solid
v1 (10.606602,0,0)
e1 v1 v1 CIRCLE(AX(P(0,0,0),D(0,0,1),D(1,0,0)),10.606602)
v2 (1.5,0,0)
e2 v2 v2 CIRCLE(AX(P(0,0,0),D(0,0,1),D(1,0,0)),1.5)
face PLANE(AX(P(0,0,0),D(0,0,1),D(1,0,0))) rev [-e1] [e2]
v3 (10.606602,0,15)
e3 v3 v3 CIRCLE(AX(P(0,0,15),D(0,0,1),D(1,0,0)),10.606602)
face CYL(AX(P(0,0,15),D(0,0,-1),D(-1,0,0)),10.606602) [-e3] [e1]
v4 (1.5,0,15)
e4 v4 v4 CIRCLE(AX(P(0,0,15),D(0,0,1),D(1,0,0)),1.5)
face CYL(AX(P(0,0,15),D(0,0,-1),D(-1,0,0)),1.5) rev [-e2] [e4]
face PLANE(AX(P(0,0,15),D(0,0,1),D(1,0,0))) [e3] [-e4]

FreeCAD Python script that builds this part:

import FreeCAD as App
import Part
import Sketcher

V = App.Vector
Q = App.Units.Quantity

doc = App.newDocument("Part")
body = doc.addObject("PartDesign::Body", "Body")

sketch1 = body.newObject("Sketcher::SketchObject", "Sketch")
sketch1.AttachmentSupport = (doc.getObject("XY_Plane"), [""])
sketch1.MapMode = "FlatFace"
sketch1.addGeometry([
    Part.Circle(V(0, 0, 0), V(0, 0, 1), 10.6),
    Part.Circle(V(0, 0, 0), V(0, 0, 1), 1.5),
], False)
sketch1.addConstraint([
    Sketcher.Constraint("Coincident", 0, 3, -1, 1),
    Sketcher.Constraint("Coincident", 1, 3, -1, 1),
    Sketcher.Constraint("Diameter", 1, Q("3 mm")),
    Sketcher.Constraint("Diameter", 0, Q("21.213203 mm")),
])
pad1 = body.newObject("PartDesign::Pad", "Pad")
pad1.Profile = sketch1
pad1.Length = 15

doc.recompute()
